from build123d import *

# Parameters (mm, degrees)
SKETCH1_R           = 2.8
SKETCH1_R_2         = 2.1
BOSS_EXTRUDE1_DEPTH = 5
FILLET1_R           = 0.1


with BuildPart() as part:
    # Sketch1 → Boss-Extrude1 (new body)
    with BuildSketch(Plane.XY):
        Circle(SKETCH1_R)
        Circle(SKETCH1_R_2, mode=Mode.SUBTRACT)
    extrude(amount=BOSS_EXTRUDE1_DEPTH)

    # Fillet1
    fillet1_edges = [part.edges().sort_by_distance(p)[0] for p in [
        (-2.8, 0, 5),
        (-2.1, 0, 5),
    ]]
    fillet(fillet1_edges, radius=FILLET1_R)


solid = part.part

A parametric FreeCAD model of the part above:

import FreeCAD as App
import Part
import Sketcher


def edges_at(feature, points):
    """Names of the edges that pass closest to the given points."""
    edges = feature.Shape.Edges
    near = lambda p: min(range(len(edges)), key=lambda i: edges[i].distToShape(Part.Vertex(*p))[0])
    return sorted({f"Edge{near(p) + 1}" for p in points})

doc = App.newDocument("Part")
body = doc.addObject("PartDesign::Body", "Body")

# Sketch on XY plane
sketch1 = body.newObject("Sketcher::SketchObject", "Sketch")
sketch1.AttachmentSupport = (doc.getObject("XY_Plane"), [""])
sketch1.MapMode = "FlatFace"
sketch1.addGeometry([
    Part.Circle(App.Vector(0, 0, 0), App.Vector(0, 0, 1), 2.8),
    Part.Circle(App.Vector(0, 0, 0), App.Vector(0, 0, 1), 2.1),
], False)
sketch1.addConstraint([
    Sketcher.Constraint("Coincident", 0, 3, -1, 1),
    Sketcher.Constraint("Coincident", 1, 3, -1, 1),
    Sketcher.Constraint("Diameter", 0, 5.6),
    Sketcher.Constraint("Diameter", 1, 4.2),
])
pad1 = body.newObject("PartDesign::Pad", "Pad")
pad1.Profile = sketch1
pad1.Length = 5
doc.recompute()

fillet = body.newObject("PartDesign::Fillet", "Fillet")
fillet.Base = (pad1, edges_at(pad1, [(-2.8, 0, 5), (-2.1, 0, 5)]))
fillet.Radius = 0.1

doc.recompute()
